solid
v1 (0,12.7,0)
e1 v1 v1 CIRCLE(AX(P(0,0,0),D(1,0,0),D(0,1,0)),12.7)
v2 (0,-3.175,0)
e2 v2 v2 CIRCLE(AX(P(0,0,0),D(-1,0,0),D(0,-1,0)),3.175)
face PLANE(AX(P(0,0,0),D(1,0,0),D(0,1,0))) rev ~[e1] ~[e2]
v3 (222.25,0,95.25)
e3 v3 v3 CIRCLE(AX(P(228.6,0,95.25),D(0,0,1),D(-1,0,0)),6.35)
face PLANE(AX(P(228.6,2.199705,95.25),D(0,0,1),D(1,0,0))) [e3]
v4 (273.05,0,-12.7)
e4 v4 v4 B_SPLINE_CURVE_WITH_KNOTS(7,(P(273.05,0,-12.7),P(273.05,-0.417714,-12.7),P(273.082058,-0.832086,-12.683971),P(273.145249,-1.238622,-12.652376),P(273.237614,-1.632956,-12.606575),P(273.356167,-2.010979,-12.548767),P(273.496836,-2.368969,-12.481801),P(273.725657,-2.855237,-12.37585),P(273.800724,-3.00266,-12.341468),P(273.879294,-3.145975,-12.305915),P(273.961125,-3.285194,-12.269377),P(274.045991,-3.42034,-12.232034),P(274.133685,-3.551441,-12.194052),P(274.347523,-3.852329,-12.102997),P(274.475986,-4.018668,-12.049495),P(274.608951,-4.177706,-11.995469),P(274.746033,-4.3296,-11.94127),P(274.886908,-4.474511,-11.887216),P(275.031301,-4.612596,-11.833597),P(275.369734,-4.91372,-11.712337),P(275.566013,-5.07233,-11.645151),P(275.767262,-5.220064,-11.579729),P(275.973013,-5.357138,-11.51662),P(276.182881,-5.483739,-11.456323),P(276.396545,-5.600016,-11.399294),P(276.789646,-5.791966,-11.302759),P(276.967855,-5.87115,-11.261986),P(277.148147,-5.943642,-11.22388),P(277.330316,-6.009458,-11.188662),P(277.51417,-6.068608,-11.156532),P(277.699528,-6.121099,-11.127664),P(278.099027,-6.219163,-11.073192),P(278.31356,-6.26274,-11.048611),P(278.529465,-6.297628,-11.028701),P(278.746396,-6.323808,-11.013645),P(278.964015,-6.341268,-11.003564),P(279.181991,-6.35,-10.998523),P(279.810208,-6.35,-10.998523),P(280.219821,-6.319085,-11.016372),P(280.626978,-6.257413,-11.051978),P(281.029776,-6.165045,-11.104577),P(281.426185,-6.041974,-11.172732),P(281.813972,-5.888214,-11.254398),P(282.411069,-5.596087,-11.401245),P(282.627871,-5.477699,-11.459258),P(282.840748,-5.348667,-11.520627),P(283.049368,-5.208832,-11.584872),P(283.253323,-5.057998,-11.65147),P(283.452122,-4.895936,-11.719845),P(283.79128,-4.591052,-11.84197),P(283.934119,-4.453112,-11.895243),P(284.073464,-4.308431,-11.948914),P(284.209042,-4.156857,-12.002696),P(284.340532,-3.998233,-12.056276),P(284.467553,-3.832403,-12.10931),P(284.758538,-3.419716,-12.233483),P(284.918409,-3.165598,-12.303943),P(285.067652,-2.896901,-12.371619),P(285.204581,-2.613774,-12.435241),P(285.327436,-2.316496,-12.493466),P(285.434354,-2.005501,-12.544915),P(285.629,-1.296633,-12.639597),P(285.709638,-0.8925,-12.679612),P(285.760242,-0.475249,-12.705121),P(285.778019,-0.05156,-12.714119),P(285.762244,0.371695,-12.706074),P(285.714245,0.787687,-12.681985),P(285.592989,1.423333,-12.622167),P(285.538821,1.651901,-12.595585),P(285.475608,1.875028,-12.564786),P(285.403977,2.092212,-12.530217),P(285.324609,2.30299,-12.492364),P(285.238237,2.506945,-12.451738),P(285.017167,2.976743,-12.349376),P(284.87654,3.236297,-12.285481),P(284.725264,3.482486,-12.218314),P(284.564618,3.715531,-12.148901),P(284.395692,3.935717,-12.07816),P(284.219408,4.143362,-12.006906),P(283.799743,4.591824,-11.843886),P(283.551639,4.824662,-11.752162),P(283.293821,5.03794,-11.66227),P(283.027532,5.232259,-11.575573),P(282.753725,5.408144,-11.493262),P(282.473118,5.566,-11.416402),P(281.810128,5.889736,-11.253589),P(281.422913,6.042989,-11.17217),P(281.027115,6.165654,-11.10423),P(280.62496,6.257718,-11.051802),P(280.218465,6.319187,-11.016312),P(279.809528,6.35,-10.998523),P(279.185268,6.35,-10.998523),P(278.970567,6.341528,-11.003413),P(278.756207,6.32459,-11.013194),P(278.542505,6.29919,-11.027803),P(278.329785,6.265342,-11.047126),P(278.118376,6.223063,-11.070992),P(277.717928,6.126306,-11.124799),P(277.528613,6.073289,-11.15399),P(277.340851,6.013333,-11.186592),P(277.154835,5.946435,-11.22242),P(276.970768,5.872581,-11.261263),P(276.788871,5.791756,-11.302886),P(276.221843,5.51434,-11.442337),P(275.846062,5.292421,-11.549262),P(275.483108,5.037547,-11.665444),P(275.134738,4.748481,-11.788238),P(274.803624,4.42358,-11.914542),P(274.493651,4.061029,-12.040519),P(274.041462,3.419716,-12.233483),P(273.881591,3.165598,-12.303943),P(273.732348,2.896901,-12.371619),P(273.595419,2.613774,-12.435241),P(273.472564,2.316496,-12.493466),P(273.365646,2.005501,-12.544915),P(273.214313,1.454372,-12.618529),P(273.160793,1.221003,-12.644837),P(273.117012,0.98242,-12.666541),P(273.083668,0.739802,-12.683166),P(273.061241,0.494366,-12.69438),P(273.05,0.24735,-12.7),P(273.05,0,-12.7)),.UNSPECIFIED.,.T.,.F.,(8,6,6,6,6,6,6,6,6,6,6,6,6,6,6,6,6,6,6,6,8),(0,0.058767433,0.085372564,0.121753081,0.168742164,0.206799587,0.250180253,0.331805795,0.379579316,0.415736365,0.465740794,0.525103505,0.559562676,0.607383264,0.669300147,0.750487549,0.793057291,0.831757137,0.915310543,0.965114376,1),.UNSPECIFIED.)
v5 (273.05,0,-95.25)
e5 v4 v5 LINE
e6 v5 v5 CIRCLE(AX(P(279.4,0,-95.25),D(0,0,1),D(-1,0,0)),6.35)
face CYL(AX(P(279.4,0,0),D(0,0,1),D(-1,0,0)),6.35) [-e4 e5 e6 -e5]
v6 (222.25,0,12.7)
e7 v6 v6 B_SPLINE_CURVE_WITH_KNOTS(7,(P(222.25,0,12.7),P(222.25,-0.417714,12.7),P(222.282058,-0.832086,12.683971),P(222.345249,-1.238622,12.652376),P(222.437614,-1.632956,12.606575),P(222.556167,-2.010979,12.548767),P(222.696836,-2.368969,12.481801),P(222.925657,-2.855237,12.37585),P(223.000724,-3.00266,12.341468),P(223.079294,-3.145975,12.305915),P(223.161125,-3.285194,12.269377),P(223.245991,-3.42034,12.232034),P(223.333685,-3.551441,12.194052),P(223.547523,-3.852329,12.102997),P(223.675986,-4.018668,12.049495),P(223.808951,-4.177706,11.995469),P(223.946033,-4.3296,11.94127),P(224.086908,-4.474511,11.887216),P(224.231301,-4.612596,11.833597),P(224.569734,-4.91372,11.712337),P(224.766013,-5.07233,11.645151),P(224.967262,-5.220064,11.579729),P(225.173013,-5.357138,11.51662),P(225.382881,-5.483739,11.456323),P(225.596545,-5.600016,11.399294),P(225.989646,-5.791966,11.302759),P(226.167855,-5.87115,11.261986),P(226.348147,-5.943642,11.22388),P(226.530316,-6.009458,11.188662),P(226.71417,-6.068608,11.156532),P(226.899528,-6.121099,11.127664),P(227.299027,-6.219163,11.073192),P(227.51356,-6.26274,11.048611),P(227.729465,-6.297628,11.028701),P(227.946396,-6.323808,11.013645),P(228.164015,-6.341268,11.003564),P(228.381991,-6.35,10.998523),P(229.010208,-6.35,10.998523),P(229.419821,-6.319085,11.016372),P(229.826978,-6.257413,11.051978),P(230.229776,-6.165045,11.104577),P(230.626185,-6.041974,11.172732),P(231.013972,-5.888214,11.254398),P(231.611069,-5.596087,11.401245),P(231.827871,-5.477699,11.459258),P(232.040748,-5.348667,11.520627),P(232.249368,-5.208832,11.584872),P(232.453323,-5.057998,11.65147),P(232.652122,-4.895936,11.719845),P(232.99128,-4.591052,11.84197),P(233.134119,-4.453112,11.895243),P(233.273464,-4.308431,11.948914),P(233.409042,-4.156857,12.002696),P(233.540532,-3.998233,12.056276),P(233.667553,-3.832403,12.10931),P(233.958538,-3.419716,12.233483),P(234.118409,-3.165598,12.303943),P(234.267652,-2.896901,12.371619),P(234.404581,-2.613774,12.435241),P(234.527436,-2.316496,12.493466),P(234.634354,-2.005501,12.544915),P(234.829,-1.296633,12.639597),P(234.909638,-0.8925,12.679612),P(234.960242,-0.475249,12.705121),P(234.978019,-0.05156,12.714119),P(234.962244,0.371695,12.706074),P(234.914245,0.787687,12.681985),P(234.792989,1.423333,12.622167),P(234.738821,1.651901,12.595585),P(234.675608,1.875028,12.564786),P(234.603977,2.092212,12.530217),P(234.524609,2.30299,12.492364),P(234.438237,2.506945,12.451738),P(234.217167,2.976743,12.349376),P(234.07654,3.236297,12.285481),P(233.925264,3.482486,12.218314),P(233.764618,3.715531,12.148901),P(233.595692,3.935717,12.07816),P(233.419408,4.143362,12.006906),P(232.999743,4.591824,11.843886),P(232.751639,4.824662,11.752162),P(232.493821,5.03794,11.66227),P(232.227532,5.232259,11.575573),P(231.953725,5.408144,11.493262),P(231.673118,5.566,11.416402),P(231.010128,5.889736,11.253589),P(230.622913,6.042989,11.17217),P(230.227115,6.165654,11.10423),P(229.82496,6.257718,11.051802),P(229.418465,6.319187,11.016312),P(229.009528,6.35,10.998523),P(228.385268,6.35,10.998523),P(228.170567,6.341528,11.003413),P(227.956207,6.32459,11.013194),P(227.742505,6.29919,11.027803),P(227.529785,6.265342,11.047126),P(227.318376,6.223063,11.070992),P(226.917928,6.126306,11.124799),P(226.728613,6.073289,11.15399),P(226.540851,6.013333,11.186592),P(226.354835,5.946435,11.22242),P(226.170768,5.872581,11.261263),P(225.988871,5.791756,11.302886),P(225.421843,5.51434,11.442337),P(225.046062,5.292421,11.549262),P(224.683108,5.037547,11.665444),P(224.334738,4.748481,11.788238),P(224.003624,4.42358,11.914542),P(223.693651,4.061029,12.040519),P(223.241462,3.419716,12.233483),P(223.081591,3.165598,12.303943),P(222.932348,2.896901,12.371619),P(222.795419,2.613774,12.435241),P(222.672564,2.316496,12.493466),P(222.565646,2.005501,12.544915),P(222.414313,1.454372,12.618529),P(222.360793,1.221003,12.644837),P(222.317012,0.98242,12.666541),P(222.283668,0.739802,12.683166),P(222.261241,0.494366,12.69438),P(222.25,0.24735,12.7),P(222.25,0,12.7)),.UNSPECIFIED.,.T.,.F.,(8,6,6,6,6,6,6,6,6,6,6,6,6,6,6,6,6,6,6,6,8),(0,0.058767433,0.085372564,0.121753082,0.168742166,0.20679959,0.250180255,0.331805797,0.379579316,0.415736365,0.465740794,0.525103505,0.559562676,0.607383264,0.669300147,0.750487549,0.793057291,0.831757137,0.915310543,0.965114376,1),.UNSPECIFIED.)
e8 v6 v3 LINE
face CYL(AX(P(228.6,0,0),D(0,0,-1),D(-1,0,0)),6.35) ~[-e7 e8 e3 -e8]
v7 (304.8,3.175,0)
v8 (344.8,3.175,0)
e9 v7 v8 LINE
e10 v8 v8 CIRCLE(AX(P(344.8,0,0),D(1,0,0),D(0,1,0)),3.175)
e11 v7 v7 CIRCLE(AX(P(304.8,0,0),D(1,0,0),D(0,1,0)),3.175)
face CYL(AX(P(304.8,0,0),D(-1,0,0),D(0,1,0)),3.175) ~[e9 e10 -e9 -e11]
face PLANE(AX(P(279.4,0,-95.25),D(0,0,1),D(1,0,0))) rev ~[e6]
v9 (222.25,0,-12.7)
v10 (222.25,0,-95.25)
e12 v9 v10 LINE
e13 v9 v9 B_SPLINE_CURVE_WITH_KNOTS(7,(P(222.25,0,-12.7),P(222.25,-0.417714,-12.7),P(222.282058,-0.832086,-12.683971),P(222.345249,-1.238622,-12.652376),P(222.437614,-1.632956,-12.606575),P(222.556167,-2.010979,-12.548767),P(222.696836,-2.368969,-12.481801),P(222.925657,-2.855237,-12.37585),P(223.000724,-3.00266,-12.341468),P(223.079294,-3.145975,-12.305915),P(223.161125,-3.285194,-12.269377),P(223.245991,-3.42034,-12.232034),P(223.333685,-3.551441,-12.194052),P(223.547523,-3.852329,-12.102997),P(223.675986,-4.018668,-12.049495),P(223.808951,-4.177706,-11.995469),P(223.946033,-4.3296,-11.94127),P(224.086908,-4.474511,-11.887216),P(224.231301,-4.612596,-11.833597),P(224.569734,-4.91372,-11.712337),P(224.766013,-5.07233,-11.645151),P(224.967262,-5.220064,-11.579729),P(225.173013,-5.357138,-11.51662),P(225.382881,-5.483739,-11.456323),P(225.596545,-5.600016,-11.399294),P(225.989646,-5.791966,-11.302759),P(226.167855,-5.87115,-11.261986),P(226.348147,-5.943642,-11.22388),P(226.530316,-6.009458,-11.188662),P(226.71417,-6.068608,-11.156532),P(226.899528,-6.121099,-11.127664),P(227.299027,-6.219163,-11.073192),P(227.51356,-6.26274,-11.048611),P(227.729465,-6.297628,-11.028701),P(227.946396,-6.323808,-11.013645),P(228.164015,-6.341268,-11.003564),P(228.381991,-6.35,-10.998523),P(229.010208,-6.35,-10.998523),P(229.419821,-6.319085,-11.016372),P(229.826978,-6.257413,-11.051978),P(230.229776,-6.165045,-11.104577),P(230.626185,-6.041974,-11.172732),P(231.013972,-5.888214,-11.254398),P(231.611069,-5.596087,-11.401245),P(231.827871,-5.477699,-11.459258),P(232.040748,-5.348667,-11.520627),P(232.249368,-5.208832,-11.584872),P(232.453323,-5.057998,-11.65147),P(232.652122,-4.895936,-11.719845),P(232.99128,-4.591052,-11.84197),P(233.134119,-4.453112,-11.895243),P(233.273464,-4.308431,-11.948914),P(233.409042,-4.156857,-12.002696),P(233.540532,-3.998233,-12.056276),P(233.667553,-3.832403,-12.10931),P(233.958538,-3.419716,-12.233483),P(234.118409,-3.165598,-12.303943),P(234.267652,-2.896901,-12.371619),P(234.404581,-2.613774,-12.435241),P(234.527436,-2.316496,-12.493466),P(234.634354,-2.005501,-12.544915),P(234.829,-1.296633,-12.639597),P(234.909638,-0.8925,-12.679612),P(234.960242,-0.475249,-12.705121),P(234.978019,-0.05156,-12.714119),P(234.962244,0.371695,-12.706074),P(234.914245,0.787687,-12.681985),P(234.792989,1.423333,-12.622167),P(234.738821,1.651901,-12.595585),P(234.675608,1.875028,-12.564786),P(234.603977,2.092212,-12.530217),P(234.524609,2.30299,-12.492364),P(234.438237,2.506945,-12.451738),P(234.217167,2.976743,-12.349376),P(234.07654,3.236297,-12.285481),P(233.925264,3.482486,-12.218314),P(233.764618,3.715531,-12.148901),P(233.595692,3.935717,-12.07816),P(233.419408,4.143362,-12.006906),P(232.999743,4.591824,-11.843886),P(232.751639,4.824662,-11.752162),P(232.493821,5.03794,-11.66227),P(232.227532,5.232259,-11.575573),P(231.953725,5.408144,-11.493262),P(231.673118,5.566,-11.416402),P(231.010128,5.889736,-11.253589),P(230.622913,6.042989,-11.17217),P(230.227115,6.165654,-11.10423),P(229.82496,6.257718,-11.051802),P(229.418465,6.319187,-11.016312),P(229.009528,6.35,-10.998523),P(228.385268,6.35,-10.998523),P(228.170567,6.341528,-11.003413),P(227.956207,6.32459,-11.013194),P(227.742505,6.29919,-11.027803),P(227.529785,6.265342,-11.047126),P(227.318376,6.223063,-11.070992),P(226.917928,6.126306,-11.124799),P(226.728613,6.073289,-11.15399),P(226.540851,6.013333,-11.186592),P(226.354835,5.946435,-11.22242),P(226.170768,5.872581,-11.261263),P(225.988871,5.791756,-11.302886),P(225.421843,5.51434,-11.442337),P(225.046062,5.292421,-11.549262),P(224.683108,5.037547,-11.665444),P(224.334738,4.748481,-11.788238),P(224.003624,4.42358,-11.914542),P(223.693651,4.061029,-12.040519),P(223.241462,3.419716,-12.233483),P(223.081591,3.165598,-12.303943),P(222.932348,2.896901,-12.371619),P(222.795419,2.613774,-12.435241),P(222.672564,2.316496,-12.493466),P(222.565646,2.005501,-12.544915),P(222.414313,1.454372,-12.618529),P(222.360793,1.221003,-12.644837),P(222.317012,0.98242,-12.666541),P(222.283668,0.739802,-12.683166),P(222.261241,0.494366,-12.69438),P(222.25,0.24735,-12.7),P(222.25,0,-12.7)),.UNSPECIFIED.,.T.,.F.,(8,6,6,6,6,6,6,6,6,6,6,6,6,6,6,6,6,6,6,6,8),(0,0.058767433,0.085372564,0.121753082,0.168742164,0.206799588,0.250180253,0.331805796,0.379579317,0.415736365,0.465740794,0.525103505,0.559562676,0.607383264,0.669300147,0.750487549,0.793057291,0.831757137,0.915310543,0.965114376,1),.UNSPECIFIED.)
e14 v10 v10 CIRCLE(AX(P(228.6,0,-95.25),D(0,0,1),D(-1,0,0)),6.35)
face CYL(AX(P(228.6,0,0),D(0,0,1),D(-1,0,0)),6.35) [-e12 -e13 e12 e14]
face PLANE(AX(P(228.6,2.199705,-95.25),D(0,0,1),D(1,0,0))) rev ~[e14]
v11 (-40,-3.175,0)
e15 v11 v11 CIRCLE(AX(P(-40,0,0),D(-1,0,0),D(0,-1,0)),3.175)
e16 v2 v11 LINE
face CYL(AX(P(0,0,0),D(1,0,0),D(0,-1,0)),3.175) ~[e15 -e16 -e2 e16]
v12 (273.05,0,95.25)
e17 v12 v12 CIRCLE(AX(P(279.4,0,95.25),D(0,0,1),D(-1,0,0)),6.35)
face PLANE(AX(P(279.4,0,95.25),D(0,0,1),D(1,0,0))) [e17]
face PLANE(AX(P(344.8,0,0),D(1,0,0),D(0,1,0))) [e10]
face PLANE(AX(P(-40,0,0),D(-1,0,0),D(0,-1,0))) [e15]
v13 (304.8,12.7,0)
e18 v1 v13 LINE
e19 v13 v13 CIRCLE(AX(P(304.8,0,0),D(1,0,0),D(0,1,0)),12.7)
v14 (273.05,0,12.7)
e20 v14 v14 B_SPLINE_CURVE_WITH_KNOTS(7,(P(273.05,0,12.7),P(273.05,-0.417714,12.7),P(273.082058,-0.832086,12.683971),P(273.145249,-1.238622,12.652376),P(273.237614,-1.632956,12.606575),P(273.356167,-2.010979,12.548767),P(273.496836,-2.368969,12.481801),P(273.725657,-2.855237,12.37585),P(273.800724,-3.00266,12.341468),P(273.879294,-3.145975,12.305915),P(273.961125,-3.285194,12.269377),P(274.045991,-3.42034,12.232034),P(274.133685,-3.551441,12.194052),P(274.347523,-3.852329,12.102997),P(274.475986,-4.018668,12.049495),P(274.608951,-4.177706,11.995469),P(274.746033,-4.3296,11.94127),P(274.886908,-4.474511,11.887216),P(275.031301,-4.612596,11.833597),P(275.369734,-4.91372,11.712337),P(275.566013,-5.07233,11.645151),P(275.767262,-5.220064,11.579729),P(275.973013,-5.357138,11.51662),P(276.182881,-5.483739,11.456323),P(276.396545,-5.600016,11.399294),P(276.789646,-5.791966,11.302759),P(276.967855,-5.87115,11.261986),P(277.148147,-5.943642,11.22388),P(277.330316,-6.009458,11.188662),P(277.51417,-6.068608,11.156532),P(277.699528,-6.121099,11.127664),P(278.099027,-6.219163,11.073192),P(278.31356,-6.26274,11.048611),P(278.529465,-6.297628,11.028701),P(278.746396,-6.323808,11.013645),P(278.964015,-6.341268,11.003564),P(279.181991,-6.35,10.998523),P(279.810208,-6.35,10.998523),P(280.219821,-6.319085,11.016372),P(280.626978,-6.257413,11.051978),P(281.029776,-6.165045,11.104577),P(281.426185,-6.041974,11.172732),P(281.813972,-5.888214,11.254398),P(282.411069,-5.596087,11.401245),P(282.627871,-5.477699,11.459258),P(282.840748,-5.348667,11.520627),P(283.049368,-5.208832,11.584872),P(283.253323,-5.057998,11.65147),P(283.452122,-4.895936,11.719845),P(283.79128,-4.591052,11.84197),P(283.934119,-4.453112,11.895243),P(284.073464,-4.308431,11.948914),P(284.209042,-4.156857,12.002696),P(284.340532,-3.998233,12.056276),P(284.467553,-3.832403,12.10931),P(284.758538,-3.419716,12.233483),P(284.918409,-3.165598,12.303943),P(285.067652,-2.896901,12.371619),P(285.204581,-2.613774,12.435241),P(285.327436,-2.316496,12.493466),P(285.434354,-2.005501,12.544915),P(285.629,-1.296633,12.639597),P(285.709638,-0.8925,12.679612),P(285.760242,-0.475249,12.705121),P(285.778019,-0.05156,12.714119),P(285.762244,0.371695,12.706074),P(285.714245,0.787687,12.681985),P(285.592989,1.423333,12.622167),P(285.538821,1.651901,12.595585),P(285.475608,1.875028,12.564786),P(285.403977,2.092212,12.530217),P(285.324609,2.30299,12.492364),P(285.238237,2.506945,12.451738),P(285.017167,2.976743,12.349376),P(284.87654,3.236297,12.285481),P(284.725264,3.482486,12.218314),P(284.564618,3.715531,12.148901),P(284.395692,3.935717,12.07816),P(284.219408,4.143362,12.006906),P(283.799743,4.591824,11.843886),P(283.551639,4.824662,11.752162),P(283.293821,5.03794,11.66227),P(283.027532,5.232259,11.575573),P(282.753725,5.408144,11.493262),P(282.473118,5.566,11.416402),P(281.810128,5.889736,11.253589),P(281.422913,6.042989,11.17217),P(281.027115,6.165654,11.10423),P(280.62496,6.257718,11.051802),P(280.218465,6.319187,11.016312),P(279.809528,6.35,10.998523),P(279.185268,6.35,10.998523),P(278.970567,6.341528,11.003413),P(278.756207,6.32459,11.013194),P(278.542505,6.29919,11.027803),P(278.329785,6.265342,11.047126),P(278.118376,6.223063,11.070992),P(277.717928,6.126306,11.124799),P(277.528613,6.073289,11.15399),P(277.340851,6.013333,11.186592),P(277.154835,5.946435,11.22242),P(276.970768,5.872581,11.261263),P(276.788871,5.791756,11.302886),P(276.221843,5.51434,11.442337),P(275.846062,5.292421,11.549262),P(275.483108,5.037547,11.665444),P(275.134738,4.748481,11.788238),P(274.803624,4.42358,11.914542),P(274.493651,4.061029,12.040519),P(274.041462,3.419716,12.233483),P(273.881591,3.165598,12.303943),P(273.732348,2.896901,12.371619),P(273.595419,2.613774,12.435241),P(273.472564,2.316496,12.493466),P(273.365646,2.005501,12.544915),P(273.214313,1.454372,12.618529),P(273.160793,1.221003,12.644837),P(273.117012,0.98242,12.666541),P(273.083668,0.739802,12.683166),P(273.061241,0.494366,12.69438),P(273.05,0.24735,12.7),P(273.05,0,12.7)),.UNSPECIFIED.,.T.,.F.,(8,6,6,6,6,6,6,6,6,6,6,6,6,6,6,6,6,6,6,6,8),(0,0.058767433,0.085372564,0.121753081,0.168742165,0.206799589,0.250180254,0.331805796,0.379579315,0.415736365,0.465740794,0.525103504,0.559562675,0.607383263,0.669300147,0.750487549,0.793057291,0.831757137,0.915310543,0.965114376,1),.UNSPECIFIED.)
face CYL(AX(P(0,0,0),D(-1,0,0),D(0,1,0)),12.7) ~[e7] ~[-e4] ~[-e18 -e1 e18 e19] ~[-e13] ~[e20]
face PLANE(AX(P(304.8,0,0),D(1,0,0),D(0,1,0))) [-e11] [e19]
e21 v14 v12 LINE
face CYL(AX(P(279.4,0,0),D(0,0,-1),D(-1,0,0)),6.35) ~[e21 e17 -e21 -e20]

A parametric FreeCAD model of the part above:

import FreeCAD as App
import Part
import Sketcher
Q = App.Units.Quantity

doc = App.newDocument("Part")
params = doc.addObject("Spreadsheet::Sheet", "Params")
for row, (alias, value) in enumerate([
    ("sketch1_diameter", "1 in"),
    ("pad1_length", "12 in"),
    ("sketch2_diameter", "0.25 in"),
    ("pad2_length", "40 mm"),
    ("sketch3_diameter", "0.25 in"),
    ("pad3_length", "40 mm"),
    ("sketch4_diameter", "0.5 in"),
    ("pad4_length", "3.75 in"),
    ("pad4_length2", "3.75 in"),
], start=1):
    params.set(f"A{row}", alias)
    params.set(f"B{row}", "=" + value)
    params.setAlias(f"B{row}", alias)

body = doc.addObject("PartDesign::Body", "Body")

sketch1 = doc.addObject("Sketcher::SketchObject", "Sketch")
body.addObject(sketch1)
sketch1.AttachmentSupport = (doc.YZ_Plane, [""])
sketch1.MapMode = "FlatFace"
sketch1.addGeometry(Part.Circle(App.Vector(0, 0, 0), App.Vector(0, 0, 1), 12.7), False)
sketch1.addConstraint([
    Sketcher.Constraint("Coincident", 0, 3, -1, 1),
    Sketcher.Constraint("Diameter", 0, Q("1 in")),
])
sketch1.setExpression("Constraints[1]", "Params.sketch1_diameter")
pad1 = doc.addObject("PartDesign::Pad", "Pad")
body.addObject(pad1)
pad1.Profile = sketch1
pad1.setExpression("Length", "Params.pad1_length")

sketch2 = doc.addObject("Sketcher::SketchObject", "Sketch001")
body.addObject(sketch2)
sketch2.AttachmentSupport = (doc.YZ_Plane, [""])
sketch2.MapMode = "FlatFace"
sketch2.addGeometry(Part.Circle(App.Vector(0, 0, 0), App.Vector(0, 0, 1), 3.175), False)
sketch2.addConstraint([
    Sketcher.Constraint("Coincident", 0, 3, -1, 1),
    Sketcher.Constraint("Diameter", 0, Q("0.25 in")),
])
sketch2.setExpression("Constraints[1]", "Params.sketch2_diameter")
pad2 = doc.addObject("PartDesign::Pad", "Pad001")
body.addObject(pad2)
pad2.Profile = sketch2
pad2.setExpression("Length", "Params.pad2_length")
pad2.Reversed = True

sketch3 = doc.addObject("Sketcher::SketchObject", "Sketch002")
body.addObject(sketch3)
sketch3.AttachmentSupport = (doc.YZ_Plane, [""])
sketch3.MapMode = "FlatFace"
sketch3.AttachmentOffset = App.Placement(App.Vector(0, 0, 12 * 25.4), App.Rotation())
sketch3.addGeometry(Part.Circle(App.Vector(0, 0, 0), App.Vector(0, 0, 1), 3.175), False)
sketch3.addConstraint([
    Sketcher.Constraint("Coincident", 0, 3, -1, 1),
    Sketcher.Constraint("Diameter", 0, Q("0.25 in")),
])
sketch3.setExpression("Constraints[1]", "Params.sketch3_diameter")
pad3 = doc.addObject("PartDesign::Pad", "Pad002")
body.addObject(pad3)
pad3.Profile = sketch3
pad3.setExpression("Length", "Params.pad3_length")

sketch4 = doc.addObject("Sketcher::SketchObject", "Sketch003")
body.addObject(sketch4)
sketch4.AttachmentSupport = (doc.XY_Plane, [""])
sketch4.MapMode = "FlatFace"
sketch4.addGeometry([
    Part.Circle(App.Vector(228.6, 0, 0), App.Vector(0, 0, 1), 6.35),
    Part.Circle(App.Vector(279.4, 0, 0), App.Vector(0, 0, 1), 6.35),
], False)
sketch4.addConstraint([
    Sketcher.Constraint("Equal", 0, 1),
    Sketcher.Constraint("PointOnObject", 0, 3, -1),
    Sketcher.Constraint("PointOnObject", 1, 3, -1),
    Sketcher.Constraint("Diameter", 0, Q("0.5 in")),
    Sketcher.Constraint("DistanceX", -1, 1, 0, 3, Q("9 in")),
    Sketcher.Constraint("DistanceX", -1, 1, 1, 3, Q("11 in")),
])
sketch4.setExpression("Constraints[3]", "Params.sketch4_diameter")
pad4 = doc.addObject("PartDesign::Pad", "Pad003")
body.addObject(pad4)
pad4.Profile = sketch4
pad4.Type = "TwoLengths"
pad4.setExpression("Length", "Params.pad4_length")
pad4.setExpression("Length2", "Params.pad4_length2")

doc.recompute()
